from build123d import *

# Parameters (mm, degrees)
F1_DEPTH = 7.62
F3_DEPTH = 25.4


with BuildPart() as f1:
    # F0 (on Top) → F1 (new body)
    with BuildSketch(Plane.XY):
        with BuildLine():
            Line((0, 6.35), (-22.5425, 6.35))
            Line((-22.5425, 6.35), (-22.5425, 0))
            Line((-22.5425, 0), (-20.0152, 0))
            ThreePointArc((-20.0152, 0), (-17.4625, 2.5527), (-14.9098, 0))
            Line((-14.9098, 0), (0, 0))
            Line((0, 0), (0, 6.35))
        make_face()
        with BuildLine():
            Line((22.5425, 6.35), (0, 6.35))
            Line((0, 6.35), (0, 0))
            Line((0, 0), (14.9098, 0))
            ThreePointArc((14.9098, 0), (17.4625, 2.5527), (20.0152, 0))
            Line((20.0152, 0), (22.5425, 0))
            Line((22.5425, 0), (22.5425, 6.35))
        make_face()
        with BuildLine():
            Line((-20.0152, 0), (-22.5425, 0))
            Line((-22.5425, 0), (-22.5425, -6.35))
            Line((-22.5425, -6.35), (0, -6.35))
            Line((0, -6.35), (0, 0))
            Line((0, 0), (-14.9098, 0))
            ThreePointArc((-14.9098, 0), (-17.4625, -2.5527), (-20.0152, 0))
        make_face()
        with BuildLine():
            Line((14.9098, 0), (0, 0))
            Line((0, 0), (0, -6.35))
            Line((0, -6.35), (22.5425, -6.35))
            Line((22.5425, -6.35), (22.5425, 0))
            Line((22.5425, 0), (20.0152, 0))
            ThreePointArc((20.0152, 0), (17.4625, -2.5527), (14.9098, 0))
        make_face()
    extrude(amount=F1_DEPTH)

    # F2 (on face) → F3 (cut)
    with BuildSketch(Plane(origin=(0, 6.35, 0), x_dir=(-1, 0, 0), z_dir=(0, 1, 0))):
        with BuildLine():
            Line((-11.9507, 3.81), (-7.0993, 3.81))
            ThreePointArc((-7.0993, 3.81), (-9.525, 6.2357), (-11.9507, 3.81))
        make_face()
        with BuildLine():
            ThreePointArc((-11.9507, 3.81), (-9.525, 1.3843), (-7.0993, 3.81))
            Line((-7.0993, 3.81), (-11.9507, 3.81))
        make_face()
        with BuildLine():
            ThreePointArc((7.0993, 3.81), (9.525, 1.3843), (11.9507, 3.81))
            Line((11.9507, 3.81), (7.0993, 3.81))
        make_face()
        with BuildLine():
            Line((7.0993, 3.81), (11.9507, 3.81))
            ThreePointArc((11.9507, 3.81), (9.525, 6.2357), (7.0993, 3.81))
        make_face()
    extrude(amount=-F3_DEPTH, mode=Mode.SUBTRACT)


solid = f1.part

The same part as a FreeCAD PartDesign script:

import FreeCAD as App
import Part
import Sketcher
from FreeCAD import Vector
Q = App.Units.Quantity


def add_polygon(sketch, points):
    """Adds a closed chain of lines whose ends are joined by coincident constraints."""
    first, n = sketch.GeometryCount, len(points)
    for a, b in zip(points, points[1:] + points[:1]):
        sketch.addGeometry(Part.LineSegment(App.Vector(*a, 0), App.Vector(*b, 0)), False)
    for i in range(n):
        sketch.addConstraint(Sketcher.Constraint("Coincident", first + i, 2, first + (i + 1) % n, 1))

doc = App.newDocument("Part")
body = doc.addObject("PartDesign::Body", "Body")

# Sketch on XY plane
sketch1 = body.newObject("Sketcher::SketchObject", "Sketch")
sketch1.AttachmentSupport = (doc.getObject("XY_Plane"), [""])
sketch1.MapMode = "FlatFace"
add_polygon(sketch1, [(-22.5, 6.3), (-22.5, -6.3), (22.5, -6.3), (22.5, 6.3)])  # lines 0-3
sketch1.addGeometry(Part.Circle(Vector(17.5, 0, 0), Vector(0, 0, 1), 2.6), False)  # 4
sketch1.addGeometry(Part.Circle(Vector(-17.5, 0, 0), Vector(0, 0, 1), 2.6), False)  # 5
sketch1.addConstraint(Sketcher.Constraint("Vertical", 0))
sketch1.addConstraint(Sketcher.Constraint("Horizontal", 1))
sketch1.addConstraint(Sketcher.Constraint("Vertical", 2))
sketch1.addConstraint(Sketcher.Constraint("Horizontal", 3))
sketch1.addConstraint(Sketcher.Constraint("Equal", 4, 5))
sketch1.addConstraint(Sketcher.Constraint("Symmetric", 4, 3, 5, 3, -1, 1))
sketch1.addConstraint(Sketcher.Constraint("Symmetric", 0, 2, 2, 2, -1, 1))
sketch1.addConstraint(Sketcher.Constraint("PointOnObject", 4, 3, -1))
sketch1.addConstraint(Sketcher.Constraint("Diameter", 4, Q("0.201 in")))
sketch1.addConstraint(Sketcher.Constraint("DistanceY", 0, 2, 0, 1, Q("0.5 in")))
sketch1.addConstraint(Sketcher.Constraint("DistanceX", 0, 2, 5, 3, Q("0.2 in")))
sketch1.addConstraint(Sketcher.Constraint("DistanceX", 1, 1, 1, 2, Q("1.775 in")))
pad1 = body.newObject("PartDesign::Pad", "Pad")
pad1.Profile = sketch1
pad1.Length = Q("0.3 in")

# Sketch on XZ plane
sketch2 = body.newObject("Sketcher::SketchObject", "Sketch001")
sketch2.AttachmentSupport = (doc.getObject("XZ_Plane"), [""])
sketch2.MapMode = "FlatFace"
sketch2.AttachmentOffset = App.Placement(Vector(0, 0, -0.25 * 25.4), App.Rotation())
sketch2.addGeometry(Part.Circle(Vector(9.5, 3.8, 0), Vector(0, 0, 1), 2.4), False)
sketch2.addGeometry(Part.Circle(Vector(-9.5, 3.8, 0), Vector(0, 0, 1), 2.4), False)
sketch2.addConstraint(Sketcher.Constraint("Equal", 0, 1))
sketch2.addConstraint(Sketcher.Constraint("Symmetric", 0, 3, 1, 3, -2))
sketch2.addConstraint(Sketcher.Constraint("Diameter", 0, Q("0.191 in")))
sketch2.addConstraint(Sketcher.Constraint("DistanceY", -1, 1, 0, 3, Q("0.15 in")))
sketch2.addConstraint(Sketcher.Constraint("DistanceX", 1, 3, 0, 3, Q("0.75 in")))
pocket1 = body.newObject("PartDesign::Pocket", "Pocket")
pocket1.Profile = sketch2
pocket1.Length = Q("1 in")
pocket1.Reversed = True

doc.recompute()
